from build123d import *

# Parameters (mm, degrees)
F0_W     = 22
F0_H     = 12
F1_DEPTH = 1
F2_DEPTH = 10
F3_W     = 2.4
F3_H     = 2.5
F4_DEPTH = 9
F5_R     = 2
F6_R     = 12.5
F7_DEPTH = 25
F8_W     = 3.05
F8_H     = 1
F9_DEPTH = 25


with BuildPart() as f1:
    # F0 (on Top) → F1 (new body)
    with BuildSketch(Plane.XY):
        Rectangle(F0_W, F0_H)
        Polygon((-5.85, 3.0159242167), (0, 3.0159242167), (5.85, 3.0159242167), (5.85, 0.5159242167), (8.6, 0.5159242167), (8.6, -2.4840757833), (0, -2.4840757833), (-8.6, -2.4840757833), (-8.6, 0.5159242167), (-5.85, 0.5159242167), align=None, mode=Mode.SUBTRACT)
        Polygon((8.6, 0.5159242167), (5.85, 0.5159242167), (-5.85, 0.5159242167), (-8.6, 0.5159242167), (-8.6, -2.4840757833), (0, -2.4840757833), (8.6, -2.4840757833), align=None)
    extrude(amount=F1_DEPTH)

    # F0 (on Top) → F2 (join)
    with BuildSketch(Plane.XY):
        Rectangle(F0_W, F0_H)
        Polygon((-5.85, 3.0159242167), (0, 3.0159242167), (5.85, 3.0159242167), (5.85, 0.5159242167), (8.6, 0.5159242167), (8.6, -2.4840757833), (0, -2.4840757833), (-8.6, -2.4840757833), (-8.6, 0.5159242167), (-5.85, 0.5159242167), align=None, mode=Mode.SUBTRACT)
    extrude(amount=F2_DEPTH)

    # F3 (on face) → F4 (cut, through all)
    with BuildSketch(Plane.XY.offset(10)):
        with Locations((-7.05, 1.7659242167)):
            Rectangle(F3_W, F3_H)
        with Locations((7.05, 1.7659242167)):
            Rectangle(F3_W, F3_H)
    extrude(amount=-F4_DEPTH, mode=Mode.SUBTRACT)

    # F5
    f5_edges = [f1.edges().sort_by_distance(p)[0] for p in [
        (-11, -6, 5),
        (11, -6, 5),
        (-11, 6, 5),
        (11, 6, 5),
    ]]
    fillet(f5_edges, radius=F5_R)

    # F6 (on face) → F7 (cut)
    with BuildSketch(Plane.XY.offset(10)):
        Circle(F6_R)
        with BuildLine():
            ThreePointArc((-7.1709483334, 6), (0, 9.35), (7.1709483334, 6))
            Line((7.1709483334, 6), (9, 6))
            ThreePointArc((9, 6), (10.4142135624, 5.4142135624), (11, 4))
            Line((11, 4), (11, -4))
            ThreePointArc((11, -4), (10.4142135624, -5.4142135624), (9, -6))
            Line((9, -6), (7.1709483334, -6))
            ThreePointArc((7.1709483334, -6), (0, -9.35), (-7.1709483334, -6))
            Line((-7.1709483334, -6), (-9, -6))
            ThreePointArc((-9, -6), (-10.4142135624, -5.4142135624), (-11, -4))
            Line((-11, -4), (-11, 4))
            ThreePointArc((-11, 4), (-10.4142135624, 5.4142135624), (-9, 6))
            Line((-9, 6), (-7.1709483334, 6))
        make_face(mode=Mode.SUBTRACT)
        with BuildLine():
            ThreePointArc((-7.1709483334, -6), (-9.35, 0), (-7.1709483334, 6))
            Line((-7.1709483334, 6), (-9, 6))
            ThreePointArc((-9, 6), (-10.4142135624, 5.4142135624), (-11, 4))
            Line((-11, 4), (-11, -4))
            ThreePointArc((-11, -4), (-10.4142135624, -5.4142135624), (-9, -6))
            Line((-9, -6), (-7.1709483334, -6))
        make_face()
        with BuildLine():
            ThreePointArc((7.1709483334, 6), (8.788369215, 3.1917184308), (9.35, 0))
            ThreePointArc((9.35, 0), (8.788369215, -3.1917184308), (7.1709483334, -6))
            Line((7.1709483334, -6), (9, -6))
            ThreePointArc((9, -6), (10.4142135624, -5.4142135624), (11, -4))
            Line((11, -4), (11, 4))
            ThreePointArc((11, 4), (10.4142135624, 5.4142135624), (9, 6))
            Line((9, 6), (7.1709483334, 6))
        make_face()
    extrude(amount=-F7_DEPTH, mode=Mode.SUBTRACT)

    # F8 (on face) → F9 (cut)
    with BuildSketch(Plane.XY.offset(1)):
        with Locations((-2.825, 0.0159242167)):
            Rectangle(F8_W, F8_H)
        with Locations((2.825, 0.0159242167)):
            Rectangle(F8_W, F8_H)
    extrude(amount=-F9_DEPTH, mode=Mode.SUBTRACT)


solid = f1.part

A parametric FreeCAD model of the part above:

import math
import FreeCAD as App
import Part
import Sketcher
Q = App.Units.Quantity


def edges_at(feature, points):
    """Names of the edges that pass closest to the given points."""
    edges = feature.Shape.Edges
    near = lambda p: min(range(len(edges)), key=lambda i: edges[i].distToShape(Part.Vertex(*p))[0])
    return sorted({f"Edge{near(p) + 1}" for p in points})


def add_polygon(sketch, points):
    """Adds a closed chain of lines whose ends are joined by coincident constraints."""
    first, n = sketch.GeometryCount, len(points)
    for a, b in zip(points, points[1:] + points[:1]):
        sketch.addGeometry(Part.LineSegment(App.Vector(*a, 0), App.Vector(*b, 0)), False)
    for i in range(n):
        sketch.addConstraint(Sketcher.Constraint("Coincident", first + i, 2, first + (i + 1) % n, 1))

doc = App.newDocument("Part")
body = doc.addObject("PartDesign::Body", "Body")

sketch1 = body.newObject("Sketcher::SketchObject", "Sketch")
sketch1.AttachmentSupport = (doc.getObject("XY_Plane"), [""])
sketch1.MapMode = "FlatFace"
add_polygon(sketch1, [(-11, 6), (-11, -6), (11, -6), (11, 6)])
add_polygon(sketch1, [(-5.8, 0.5), (-5.8, 3), (5.8, 3), (5.8, 0.5)])
sketch1.addConstraint(Sketcher.Constraint("Vertical", 0))
sketch1.addConstraint(Sketcher.Constraint("Horizontal", 1))
sketch1.addConstraint(Sketcher.Constraint("Vertical", 2))
sketch1.addConstraint(Sketcher.Constraint("Horizontal", 3))
sketch1.addConstraint(Sketcher.Constraint("Vertical", 4))
sketch1.addConstraint(Sketcher.Constraint("Horizontal", 5))
sketch1.addConstraint(Sketcher.Constraint("Vertical", 6))
sketch1.addConstraint(Sketcher.Constraint("Horizontal", 7))
sketch1.addConstraint(Sketcher.Constraint("Symmetric", 0, 2, 2, 2, -1, 1))
sketch1.addConstraint(Sketcher.Constraint("DistanceX", 1, 1, 1, 2, Q("22 mm")))
sketch1.addConstraint(Sketcher.Constraint("DistanceY", 0, 2, 0, 1, Q("12 mm")))
sketch1.addConstraint(Sketcher.Constraint("DistanceX", 5, 1, 5, 2, Q("11.7 mm")))
sketch1.addConstraint(Sketcher.Constraint("DistanceY", 4, 1, 4, 2, Q("2.5 mm")))
sketch1.addConstraint(Sketcher.Constraint("DistanceX", 4, 2, -1, 1, Q("5.85 mm")))
sketch1.addConstraint(Sketcher.Constraint("DistanceY", -1, 1, 4, 2, Q("3.015924 mm")))
pad1 = body.newObject("PartDesign::Pad", "Pad")
pad1.Profile = sketch1
pad1.Length = 1

sketch2 = body.newObject("Sketcher::SketchObject", "Sketch001")
sketch2.AttachmentSupport = (doc.getObject("XY_Plane"), [""])
sketch2.MapMode = "FlatFace"
add_polygon(sketch2, [(-11, 6), (-11, -6), (11, -6), (11, 6)])
add_polygon(sketch2, [(-5.8, 0.5), (-5.8, 3), (5.8, 3), (5.8, 0.5), (8.6, 0.5), (8.6, -2.5), (-8.6, -2.5), (-8.6, 0.5)])
sketch2.addConstraint(Sketcher.Constraint("Vertical", 0))
sketch2.addConstraint(Sketcher.Constraint("Horizontal", 1))
sketch2.addConstraint(Sketcher.Constraint("Vertical", 2))
sketch2.addConstraint(Sketcher.Constraint("Horizontal", 3))
sketch2.addConstraint(Sketcher.Constraint("Vertical", 4))
sketch2.addConstraint(Sketcher.Constraint("Horizontal", 5))
sketch2.addConstraint(Sketcher.Constraint("Vertical", 6))
sketch2.addConstraint(Sketcher.Constraint("Horizontal", 7))
sketch2.addConstraint(Sketcher.Constraint("Vertical", 8))
sketch2.addConstraint(Sketcher.Constraint("Horizontal", 9))
sketch2.addConstraint(Sketcher.Constraint("Vertical", 10))
sketch2.addConstraint(Sketcher.Constraint("Horizontal", 11))
sketch2.addConstraint(Sketcher.Constraint("Symmetric", 0, 2, 2, 2, -1, 1))
sketch2.addConstraint(Sketcher.Constraint("Symmetric", 7, 2, 10, 2, -2))
sketch2.addConstraint(Sketcher.Constraint("Equal", 7, 11))
sketch2.addConstraint(Sketcher.Constraint("DistanceX", 1, 1, 1, 2, Q("22 mm")))
sketch2.addConstraint(Sketcher.Constraint("DistanceY", 0, 2, 0, 1, Q("12 mm")))
sketch2.addConstraint(Sketcher.Constraint("DistanceY", 8, 2, 8, 1, Q("3 mm")))
sketch2.addConstraint(Sketcher.Constraint("DistanceX", 5, 1, 5, 2, Q("11.7 mm")))
sketch2.addConstraint(Sketcher.Constraint("DistanceX", 9, 2, 9, 1, Q("17.2 mm")))
sketch2.addConstraint(Sketcher.Constraint("DistanceY", 4, 1, 4, 2, Q("2.5 mm")))
sketch2.addConstraint(Sketcher.Constraint("DistanceY", -1, 1, 4, 2, Q("3.015924 mm")))
pad2 = body.newObject("PartDesign::Pad", "Pad001")
pad2.Profile = sketch2
pad2.Length = 10

sketch3 = body.newObject("Sketcher::SketchObject", "Sketch002")
sketch3.AttachmentSupport = (doc.getObject("XY_Plane"), [""])
sketch3.MapMode = "FlatFace"
sketch3.AttachmentOffset = App.Placement(App.Vector(0, 0, 10), App.Rotation())
add_polygon(sketch3, [(-8.2, 3), (-8.2, 0.5), (-5.8, 0.5), (-5.8, 3)])
add_polygon(sketch3, [(5.8, 3), (5.8, 0.5), (8.2, 0.5), (8.2, 3)])
sketch3.addConstraint(Sketcher.Constraint("Vertical", 0))
sketch3.addConstraint(Sketcher.Constraint("Horizontal", 1))
sketch3.addConstraint(Sketcher.Constraint("Vertical", 2))
sketch3.addConstraint(Sketcher.Constraint("Horizontal", 3))
sketch3.addConstraint(Sketcher.Constraint("Vertical", 4))
sketch3.addConstraint(Sketcher.Constraint("Horizontal", 5))
sketch3.addConstraint(Sketcher.Constraint("Vertical", 6))
sketch3.addConstraint(Sketcher.Constraint("Horizontal", 7))
sketch3.addConstraint(Sketcher.Constraint("Symmetric", 1, 2, 4, 2, -2))
sketch3.addConstraint(Sketcher.Constraint("Symmetric", 3, 2, 6, 2, -2))
sketch3.addConstraint(Sketcher.Constraint("DistanceX", 1, 1, 1, 2, Q("2.4 mm")))
sketch3.addConstraint(Sketcher.Constraint("DistanceY", 0, 2, 0, 1, Q("2.5 mm")))
sketch3.addConstraint(Sketcher.Constraint("DistanceX", 1, 2, 4, 2, Q("11.7 mm")))
sketch3.addConstraint(Sketcher.Constraint("DistanceY", -1, 1, 0, 2, Q("0.515924 mm")))
pocket1 = body.newObject("PartDesign::Pocket", "Pocket")
pocket1.Profile = sketch3
pocket1.Length = 9
doc.recompute()

fillet = body.newObject("PartDesign::Fillet", "Fillet")
fillet.Base = (pocket1, edges_at(pocket1, [
    (-11, -6, 5),
    (11, -6, 5),
    (-11, 6, 5),
    (11, 6, 5),
]))
fillet.Radius = 2

sketch4 = body.newObject("Sketcher::SketchObject", "Sketch003")
sketch4.AttachmentSupport = (doc.getObject("XY_Plane"), [""])
sketch4.MapMode = "FlatFace"
sketch4.AttachmentOffset = App.Placement(App.Vector(0, 0, 10), App.Rotation())
sketch4.addGeometry(Part.Circle(App.Vector(0, 0, 0), App.Vector(0, 0, 1), 12), False)
sketch4.addGeometry(Part.ArcOfCircle(Part.Circle(App.Vector(0, 0, 0), App.Vector(0, 0, 1), 9), math.radians(-140), math.radians(-40)), False)
sketch4.addGeometry(Part.ArcOfCircle(Part.Circle(App.Vector(0, 0, 0), App.Vector(0, 0, 1), 9), math.radians(140), math.radians(220)), False)
sketch4.addGeometry(Part.ArcOfCircle(Part.Circle(App.Vector(0, 0, 0), App.Vector(0, 0, 1), 9), math.radians(40), math.radians(140)), False)
sketch4.addGeometry(Part.ArcOfCircle(Part.Circle(App.Vector(0, 0, 0), App.Vector(0, 0, 1), 9), math.radians(0), math.radians(40)), False)
sketch4.addGeometry(Part.ArcOfCircle(Part.Circle(App.Vector(0, 0, 0), App.Vector(0, 0, 1), 9), math.radians(-40), math.radians(0)), False)
sketch4.addConstraint(Sketcher.Constraint("Tangent", 1, 1, 2, 2))
sketch4.addConstraint(Sketcher.Constraint("Tangent", 2, 1, 3, 2))
sketch4.addConstraint(Sketcher.Constraint("Tangent", 3, 1, 4, 2))
sketch4.addConstraint(Sketcher.Constraint("Tangent", 4, 1, 5, 2))
sketch4.addConstraint(Sketcher.Constraint("Tangent", 5, 1, 1, 2))
sketch4.addConstraint(Sketcher.Constraint("Coincident", 0, 3, -1, 1))
sketch4.addConstraint(Sketcher.Constraint("Coincident", 1, 3, -1, 1))
sketch4.addConstraint(Sketcher.Constraint("Coincident", 3, 3, -1, 1))
sketch4.addConstraint(Sketcher.Constraint("PointOnObject", 4, 1, -1))
sketch4.addConstraint(Sketcher.Constraint("Horizontal", 2, 1, 3, 1))
sketch4.addConstraint(Sketcher.Constraint("Horizontal", 1, 1, 5, 1))
sketch4.addConstraint(Sketcher.Constraint("Vertical", 1, 1, 2, 1))
sketch4.addConstraint(Sketcher.Constraint("Diameter", 0, Q("25 mm")))
sketch4.addConstraint(Sketcher.Constraint("Radius", 1, Q("9.35 mm")))
sketch4.addConstraint(Sketcher.Constraint("DistanceY", 1, 1, -1, 1, Q("6 mm")))
pocket2 = body.newObject("PartDesign::Pocket", "Pocket001")
pocket2.Profile = sketch4
pocket2.Length = 25

sketch5 = body.newObject("Sketcher::SketchObject", "Sketch004")
sketch5.AttachmentSupport = (doc.getObject("XY_Plane"), [""])
sketch5.MapMode = "FlatFace"
sketch5.AttachmentOffset = App.Placement(App.Vector(0, 0, 1), App.Rotation())
add_polygon(sketch5, [(-4.3, 0.5), (-4.3, -0.5), (-1.3, -0.5), (-1.3, 0.5)])
add_polygon(sketch5, [(1.3, 0.5), (1.3, -0.5), (4.3, -0.5), (4.3, 0.5)])
sketch5.addConstraint(Sketcher.Constraint("Vertical", 0))
sketch5.addConstraint(Sketcher.Constraint("Horizontal", 1))
sketch5.addConstraint(Sketcher.Constraint("Vertical", 2))
sketch5.addConstraint(Sketcher.Constraint("Horizontal", 3))
sketch5.addConstraint(Sketcher.Constraint("Vertical", 4))
sketch5.addConstraint(Sketcher.Constraint("Horizontal", 5))
sketch5.addConstraint(Sketcher.Constraint("Vertical", 6))
sketch5.addConstraint(Sketcher.Constraint("Horizontal", 7))
sketch5.addConstraint(Sketcher.Constraint("Symmetric", 1, 2, 4, 2, -2))
sketch5.addConstraint(Sketcher.Constraint("Symmetric", 3, 2, 6, 2, -2))
sketch5.addConstraint(Sketcher.Constraint("DistanceY", 0, 2, 0, 1, Q("1 mm")))
sketch5.addConstraint(Sketcher.Constraint("DistanceX", 1, 1, 1, 2, Q("3.05 mm")))
sketch5.addConstraint(Sketcher.Constraint("DistanceX", 1, 2, -1, 1, Q("1.3 mm")))
sketch5.addConstraint(Sketcher.Constraint("DistanceY", 0, 2, -1, 1, Q("0.484076 mm")))
pocket3 = body.newObject("PartDesign::Pocket", "Pocket002")
pocket3.Profile = sketch5
pocket3.Length = 25

doc.recompute()
